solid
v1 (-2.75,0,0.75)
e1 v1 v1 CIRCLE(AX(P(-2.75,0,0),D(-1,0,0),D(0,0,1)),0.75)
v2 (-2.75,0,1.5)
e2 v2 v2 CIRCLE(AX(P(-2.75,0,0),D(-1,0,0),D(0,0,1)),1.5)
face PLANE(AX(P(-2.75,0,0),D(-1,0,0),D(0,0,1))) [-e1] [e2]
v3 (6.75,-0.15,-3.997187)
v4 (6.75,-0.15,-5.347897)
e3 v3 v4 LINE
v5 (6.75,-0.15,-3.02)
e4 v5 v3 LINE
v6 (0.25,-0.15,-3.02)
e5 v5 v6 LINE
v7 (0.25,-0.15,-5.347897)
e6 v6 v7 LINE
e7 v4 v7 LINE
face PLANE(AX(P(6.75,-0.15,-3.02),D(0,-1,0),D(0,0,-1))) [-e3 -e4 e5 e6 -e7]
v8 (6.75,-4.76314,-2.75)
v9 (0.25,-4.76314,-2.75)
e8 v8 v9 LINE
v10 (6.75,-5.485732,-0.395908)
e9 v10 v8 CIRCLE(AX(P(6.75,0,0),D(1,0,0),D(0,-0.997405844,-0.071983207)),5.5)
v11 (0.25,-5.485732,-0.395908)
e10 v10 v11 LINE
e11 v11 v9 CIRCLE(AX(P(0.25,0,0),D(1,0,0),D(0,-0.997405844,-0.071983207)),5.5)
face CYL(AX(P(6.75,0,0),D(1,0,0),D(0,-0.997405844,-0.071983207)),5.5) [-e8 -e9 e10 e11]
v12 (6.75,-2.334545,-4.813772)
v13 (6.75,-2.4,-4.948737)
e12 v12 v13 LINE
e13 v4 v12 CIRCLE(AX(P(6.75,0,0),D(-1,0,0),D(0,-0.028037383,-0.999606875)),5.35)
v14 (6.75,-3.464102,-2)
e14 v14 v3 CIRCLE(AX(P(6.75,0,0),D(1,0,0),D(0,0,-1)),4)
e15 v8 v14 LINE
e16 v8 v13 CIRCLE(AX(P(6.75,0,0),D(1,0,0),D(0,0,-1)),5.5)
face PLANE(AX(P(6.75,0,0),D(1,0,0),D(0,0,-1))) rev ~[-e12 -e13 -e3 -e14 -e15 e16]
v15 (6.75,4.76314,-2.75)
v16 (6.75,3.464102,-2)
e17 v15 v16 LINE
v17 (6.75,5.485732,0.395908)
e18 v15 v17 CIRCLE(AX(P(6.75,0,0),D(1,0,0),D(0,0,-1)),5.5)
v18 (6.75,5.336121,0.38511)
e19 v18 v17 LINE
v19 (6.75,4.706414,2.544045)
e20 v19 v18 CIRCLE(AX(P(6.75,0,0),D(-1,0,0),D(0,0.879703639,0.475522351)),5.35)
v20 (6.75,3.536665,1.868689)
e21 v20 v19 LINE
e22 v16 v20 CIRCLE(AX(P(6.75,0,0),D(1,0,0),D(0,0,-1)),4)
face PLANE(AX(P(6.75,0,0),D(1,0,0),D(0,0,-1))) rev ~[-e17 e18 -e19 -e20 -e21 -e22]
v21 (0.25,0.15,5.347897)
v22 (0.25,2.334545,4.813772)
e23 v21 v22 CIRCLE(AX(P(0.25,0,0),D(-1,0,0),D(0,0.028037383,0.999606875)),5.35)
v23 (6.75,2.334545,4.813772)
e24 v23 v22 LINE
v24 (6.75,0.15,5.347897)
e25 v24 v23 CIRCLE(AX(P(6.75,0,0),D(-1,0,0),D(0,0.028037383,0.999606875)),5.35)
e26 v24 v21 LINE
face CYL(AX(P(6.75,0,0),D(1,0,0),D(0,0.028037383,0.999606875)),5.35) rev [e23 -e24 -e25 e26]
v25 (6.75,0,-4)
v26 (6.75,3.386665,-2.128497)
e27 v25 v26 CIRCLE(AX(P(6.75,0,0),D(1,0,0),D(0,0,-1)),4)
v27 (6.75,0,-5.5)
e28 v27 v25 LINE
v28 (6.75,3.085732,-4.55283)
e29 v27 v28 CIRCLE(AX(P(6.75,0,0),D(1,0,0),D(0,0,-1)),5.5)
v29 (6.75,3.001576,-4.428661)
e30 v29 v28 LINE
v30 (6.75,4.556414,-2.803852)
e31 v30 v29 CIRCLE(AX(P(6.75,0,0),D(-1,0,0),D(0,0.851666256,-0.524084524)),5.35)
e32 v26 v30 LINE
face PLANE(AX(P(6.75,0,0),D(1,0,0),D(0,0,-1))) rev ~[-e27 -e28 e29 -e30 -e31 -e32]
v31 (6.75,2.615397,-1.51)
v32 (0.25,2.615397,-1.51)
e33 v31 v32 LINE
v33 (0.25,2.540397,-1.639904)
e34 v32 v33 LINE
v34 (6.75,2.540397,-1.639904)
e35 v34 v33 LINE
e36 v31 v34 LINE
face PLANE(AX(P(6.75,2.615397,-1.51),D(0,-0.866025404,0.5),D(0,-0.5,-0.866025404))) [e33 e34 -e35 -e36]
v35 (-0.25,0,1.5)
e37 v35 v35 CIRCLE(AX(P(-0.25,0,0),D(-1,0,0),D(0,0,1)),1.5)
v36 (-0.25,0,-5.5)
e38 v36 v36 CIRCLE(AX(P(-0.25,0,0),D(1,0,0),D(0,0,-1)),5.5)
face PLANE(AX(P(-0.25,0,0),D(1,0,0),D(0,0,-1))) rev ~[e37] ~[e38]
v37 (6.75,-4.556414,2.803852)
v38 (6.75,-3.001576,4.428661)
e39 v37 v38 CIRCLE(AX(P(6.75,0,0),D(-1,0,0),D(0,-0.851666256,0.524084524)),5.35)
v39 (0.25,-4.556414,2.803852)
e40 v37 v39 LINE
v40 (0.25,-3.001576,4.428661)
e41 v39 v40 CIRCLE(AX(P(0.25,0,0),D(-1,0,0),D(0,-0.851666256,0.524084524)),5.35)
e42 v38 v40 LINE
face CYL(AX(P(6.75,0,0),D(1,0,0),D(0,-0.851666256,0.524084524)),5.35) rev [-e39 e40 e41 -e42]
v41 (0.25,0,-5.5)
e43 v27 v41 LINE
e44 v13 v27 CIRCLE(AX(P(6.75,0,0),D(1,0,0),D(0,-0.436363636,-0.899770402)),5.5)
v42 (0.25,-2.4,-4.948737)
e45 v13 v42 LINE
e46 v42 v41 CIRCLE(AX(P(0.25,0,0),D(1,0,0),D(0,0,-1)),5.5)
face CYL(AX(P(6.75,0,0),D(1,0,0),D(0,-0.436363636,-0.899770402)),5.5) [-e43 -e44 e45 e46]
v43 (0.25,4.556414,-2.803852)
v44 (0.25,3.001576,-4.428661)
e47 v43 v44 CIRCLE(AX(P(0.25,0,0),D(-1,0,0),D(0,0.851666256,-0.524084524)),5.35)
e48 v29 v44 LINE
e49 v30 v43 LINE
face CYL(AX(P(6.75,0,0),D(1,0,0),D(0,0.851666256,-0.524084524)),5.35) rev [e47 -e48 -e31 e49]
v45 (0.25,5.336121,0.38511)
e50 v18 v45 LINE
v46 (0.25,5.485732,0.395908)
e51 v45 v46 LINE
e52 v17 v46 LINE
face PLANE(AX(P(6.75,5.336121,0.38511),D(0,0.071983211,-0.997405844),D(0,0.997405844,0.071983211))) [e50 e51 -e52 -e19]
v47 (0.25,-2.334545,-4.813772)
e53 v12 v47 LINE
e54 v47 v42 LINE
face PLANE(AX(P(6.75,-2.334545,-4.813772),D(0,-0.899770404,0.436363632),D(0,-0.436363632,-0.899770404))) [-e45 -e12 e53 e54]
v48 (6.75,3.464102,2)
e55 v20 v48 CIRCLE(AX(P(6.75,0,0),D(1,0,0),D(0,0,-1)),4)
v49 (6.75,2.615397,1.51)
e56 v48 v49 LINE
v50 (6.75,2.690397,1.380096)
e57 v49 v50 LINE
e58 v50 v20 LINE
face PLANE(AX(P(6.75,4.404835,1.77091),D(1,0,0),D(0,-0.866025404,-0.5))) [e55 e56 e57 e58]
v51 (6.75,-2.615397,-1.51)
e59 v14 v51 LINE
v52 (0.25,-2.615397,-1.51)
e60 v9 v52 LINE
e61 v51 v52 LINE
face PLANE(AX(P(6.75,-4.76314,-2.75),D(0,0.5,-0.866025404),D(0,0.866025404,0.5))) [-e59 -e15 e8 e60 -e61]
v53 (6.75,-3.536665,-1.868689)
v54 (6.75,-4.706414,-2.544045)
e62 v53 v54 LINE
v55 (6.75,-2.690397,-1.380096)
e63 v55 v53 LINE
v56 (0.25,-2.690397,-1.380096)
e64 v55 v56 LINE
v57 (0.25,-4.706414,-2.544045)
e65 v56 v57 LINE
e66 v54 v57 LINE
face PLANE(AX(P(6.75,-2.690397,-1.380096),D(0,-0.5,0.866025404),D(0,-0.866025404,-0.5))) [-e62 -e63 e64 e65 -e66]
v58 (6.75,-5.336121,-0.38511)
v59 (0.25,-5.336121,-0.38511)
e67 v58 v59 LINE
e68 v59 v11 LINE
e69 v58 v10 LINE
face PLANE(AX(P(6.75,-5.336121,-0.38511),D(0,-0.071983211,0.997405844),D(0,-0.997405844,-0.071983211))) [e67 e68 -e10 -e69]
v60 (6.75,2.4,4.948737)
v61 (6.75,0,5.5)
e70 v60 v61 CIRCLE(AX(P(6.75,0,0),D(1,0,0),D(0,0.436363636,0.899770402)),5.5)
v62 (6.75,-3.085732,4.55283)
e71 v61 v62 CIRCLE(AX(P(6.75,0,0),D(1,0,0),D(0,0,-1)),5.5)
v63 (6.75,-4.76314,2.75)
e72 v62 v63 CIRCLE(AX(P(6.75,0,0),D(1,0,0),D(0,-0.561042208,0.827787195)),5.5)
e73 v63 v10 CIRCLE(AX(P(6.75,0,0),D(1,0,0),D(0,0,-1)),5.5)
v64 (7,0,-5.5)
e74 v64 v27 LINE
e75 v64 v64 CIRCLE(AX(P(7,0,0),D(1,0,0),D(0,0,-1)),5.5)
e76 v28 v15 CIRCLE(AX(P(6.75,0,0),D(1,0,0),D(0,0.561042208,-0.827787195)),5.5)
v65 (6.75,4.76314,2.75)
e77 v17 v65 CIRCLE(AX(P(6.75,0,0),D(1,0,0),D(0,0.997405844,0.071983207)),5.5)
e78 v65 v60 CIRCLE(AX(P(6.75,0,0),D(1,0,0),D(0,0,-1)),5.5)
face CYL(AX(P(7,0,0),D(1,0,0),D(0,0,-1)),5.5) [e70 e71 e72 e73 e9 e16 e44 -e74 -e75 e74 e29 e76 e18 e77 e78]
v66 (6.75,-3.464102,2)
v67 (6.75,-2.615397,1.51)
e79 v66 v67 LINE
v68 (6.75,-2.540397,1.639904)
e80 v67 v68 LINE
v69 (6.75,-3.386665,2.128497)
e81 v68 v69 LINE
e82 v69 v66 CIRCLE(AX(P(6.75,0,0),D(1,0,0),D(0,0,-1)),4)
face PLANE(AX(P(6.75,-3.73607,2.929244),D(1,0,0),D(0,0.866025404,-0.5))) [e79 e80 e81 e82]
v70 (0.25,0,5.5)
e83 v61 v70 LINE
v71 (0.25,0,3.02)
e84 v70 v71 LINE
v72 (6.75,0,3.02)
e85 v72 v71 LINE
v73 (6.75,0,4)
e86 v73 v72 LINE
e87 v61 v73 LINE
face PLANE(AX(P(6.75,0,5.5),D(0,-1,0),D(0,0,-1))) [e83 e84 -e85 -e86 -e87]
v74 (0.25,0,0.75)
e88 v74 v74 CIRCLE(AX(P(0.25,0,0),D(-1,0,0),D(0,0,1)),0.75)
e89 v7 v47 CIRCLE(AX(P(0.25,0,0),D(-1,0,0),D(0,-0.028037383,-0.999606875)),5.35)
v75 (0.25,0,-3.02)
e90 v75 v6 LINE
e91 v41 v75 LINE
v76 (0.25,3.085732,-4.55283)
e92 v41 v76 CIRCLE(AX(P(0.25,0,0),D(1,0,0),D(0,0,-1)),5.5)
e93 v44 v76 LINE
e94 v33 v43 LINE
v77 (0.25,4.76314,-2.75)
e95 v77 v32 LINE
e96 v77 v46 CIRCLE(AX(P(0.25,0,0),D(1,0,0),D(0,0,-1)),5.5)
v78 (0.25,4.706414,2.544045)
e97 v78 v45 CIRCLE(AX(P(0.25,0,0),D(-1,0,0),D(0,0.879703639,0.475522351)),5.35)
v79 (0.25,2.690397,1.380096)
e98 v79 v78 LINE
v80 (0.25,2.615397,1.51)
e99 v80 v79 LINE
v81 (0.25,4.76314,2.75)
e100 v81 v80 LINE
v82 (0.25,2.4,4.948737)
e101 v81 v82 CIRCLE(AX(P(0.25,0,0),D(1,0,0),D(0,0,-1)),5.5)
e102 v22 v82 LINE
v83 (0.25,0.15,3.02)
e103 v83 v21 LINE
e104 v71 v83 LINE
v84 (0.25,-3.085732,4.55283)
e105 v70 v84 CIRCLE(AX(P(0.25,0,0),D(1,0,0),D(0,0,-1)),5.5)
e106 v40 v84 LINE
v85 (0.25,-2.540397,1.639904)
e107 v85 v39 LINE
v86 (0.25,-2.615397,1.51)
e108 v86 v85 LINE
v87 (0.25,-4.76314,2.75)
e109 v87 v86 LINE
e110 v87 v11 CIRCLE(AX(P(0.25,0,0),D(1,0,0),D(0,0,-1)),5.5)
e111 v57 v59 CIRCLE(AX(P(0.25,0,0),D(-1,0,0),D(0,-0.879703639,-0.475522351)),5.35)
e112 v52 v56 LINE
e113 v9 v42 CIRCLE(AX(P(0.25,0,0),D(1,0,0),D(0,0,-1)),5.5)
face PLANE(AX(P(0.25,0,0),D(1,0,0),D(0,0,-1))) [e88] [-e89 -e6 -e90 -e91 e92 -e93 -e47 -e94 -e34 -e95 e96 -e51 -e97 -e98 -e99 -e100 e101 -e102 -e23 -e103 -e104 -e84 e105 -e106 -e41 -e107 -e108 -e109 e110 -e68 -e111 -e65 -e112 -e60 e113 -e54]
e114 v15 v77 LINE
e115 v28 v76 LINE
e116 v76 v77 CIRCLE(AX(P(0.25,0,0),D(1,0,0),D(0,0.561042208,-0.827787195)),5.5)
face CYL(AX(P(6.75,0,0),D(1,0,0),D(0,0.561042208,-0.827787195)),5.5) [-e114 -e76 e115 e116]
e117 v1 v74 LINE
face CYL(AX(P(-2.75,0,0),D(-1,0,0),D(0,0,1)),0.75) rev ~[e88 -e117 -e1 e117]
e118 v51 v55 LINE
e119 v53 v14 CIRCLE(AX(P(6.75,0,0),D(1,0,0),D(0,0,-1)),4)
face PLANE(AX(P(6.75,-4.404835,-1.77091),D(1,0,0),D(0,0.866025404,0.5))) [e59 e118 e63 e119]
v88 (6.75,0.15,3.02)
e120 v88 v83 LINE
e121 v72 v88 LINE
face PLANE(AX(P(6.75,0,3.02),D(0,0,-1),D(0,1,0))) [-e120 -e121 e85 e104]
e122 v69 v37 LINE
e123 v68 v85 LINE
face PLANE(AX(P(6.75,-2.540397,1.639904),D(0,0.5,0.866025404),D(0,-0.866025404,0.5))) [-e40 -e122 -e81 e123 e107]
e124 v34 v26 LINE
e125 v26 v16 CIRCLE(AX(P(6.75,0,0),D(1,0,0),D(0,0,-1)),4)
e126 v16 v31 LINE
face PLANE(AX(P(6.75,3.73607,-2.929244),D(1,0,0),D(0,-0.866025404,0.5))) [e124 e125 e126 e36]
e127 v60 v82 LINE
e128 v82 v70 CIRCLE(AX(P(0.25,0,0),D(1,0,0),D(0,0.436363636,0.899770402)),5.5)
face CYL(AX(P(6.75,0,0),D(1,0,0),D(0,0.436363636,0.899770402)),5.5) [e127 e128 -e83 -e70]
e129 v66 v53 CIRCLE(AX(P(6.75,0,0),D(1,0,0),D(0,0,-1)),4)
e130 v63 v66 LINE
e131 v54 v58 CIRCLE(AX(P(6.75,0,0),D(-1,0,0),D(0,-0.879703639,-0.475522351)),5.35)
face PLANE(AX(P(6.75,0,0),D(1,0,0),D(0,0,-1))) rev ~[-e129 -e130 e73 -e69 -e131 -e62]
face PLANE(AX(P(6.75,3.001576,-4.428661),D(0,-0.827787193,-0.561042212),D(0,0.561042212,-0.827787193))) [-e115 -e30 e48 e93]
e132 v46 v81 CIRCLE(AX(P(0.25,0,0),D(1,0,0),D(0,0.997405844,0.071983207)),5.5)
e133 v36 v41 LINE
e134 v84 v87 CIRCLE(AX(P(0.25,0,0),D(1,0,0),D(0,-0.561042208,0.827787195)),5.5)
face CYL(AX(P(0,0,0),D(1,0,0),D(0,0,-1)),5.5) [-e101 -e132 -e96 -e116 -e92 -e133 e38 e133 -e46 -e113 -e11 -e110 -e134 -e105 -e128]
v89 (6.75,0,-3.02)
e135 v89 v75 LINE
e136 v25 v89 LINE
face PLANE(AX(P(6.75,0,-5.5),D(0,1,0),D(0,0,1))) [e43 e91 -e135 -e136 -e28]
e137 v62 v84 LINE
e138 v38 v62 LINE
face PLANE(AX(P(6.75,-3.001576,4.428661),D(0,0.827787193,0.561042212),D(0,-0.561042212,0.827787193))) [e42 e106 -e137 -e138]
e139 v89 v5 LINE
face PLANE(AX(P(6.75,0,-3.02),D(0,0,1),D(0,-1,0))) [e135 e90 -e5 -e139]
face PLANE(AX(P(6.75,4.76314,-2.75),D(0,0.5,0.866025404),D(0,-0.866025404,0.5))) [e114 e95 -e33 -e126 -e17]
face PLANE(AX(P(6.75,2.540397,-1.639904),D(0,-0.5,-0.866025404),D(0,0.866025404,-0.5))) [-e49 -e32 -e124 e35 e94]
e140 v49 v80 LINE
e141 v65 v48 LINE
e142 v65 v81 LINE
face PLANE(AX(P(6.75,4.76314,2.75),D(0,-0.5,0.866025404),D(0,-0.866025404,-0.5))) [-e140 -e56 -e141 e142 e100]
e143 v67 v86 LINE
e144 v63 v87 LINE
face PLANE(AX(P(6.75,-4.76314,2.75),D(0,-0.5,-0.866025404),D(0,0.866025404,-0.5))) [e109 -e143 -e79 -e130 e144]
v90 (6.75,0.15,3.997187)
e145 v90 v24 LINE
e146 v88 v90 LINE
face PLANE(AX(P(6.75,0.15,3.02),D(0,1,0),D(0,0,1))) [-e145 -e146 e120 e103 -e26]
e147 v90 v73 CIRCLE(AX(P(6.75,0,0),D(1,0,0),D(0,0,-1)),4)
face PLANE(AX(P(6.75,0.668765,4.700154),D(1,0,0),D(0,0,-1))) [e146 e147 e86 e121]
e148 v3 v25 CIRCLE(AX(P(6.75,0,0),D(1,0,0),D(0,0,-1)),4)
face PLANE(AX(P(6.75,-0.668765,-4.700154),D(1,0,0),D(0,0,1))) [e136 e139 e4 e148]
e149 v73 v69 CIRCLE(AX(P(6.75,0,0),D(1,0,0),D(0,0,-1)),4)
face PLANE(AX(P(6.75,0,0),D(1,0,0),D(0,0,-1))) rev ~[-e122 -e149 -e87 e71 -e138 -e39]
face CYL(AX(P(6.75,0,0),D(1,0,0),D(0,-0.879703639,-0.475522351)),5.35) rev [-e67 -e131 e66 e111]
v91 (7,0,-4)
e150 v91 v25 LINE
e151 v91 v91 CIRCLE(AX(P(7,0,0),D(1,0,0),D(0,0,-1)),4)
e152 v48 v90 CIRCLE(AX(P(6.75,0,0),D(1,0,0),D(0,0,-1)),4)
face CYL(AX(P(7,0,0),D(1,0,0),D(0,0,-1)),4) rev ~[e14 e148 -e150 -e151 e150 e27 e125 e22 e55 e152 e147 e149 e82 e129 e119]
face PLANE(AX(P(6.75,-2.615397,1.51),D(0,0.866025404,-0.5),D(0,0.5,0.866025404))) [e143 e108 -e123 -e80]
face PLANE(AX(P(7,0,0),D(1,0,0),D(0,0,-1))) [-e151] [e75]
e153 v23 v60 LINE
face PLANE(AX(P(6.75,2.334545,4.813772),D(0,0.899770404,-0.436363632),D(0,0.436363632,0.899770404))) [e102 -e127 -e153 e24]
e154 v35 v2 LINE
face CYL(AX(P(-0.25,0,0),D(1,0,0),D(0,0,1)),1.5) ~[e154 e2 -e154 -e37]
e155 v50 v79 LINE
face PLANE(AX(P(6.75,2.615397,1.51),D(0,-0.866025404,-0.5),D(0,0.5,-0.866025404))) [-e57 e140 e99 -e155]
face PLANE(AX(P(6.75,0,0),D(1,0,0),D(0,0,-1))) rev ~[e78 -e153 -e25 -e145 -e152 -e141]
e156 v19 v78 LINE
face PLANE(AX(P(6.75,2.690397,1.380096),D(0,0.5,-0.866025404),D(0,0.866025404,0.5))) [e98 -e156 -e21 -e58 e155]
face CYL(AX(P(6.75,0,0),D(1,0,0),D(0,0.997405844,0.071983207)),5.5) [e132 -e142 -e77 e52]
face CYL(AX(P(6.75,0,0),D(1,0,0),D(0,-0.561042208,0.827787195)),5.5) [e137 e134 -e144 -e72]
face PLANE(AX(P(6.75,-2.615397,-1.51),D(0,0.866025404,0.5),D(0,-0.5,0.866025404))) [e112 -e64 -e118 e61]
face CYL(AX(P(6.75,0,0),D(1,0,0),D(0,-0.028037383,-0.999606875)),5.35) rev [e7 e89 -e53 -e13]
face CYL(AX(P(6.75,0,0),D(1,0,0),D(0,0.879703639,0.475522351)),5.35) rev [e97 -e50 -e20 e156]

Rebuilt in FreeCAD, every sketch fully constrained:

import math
import FreeCAD as App
import Part
import Sketcher

V = App.Vector

doc = App.newDocument("Part")
body = doc.addObject("PartDesign::Body", "Body")

# Sketch on YZ plane
sketch1 = body.newObject("Sketcher::SketchObject", "Sketch")
sketch1.AttachmentSupport = (doc.getObject("YZ_Plane"), [""])
sketch1.MapMode = "FlatFace"
sketch1.addGeometry(Part.Circle(V(0, 0, 0), V(0, 0, 1), 5.5), False)
sketch1.addConstraint(Sketcher.Constraint("Coincident", 0, 3, -1, 1))
sketch1.addConstraint(Sketcher.Constraint("Diameter", 0, 11.0))
pad1 = body.newObject("PartDesign::Pad", "Pad")
pad1.Profile = sketch1
pad1.Length = 0.5
pad1.Midplane = True

# Sketch on YZ plane
sketch2 = body.newObject("Sketcher::SketchObject", "Sketch001")
sketch2.AttachmentSupport = (doc.getObject("YZ_Plane"), [""])
sketch2.MapMode = "FlatFace"
sketch2.AttachmentOffset = App.Placement(V(0, 0, -0.25), App.Rotation())
sketch2.addGeometry(Part.Circle(V(0, 0, 0), V(0, 0, 1), 1.5), False)
sketch2.addConstraint(Sketcher.Constraint("Coincident", 0, 3, -1, 1))
sketch2.addConstraint(Sketcher.Constraint("Diameter", 0, 3.0))
pad2 = body.newObject("PartDesign::Pad", "Pad001")
pad2.Profile = sketch2
pad2.Length = 2.5
pad2.Reversed = True

# Sketch on YZ plane
sketch3 = body.newObject("Sketcher::SketchObject", "Sketch002")
sketch3.AttachmentSupport = (doc.getObject("YZ_Plane"), [""])
sketch3.MapMode = "FlatFace"
sketch3.AttachmentOffset = App.Placement(V(0, 0, -2.75), App.Rotation())
sketch3.addGeometry(Part.Circle(V(0, 0, 0), V(0, 0, 1), 0.75), False)
sketch3.addConstraint(Sketcher.Constraint("Coincident", 0, 3, -1, 1))
sketch3.addConstraint(Sketcher.Constraint("Diameter", 0, 1.5))
pocket1 = body.newObject("PartDesign::Pocket", "Pocket")
pocket1.Profile = sketch3
pocket1.Type = "ThroughAll"
pocket1.Reversed = True

# Sketch on YZ plane
sketch4 = body.newObject("Sketcher::SketchObject", "Sketch003")
sketch4.AttachmentSupport = (doc.getObject("YZ_Plane"), [""])
sketch4.MapMode = "FlatFace"
sketch4.AttachmentOffset = App.Placement(V(0, 0, 6.75), App.Rotation())
sketch4.addGeometry(Part.LineSegment(V(0, 5.5, 0), V(0, 3.02, 0)), False)
sketch4.addGeometry(Part.LineSegment(V(0, 3.02, 0), V(0.15, 3.02, 0)), False)
sketch4.addGeometry(Part.LineSegment(V(0.15, 3.02, 0), V(0.15, 5.347897, 0)), False)
sketch4.addGeometry(Part.ArcOfCircle(Part.Circle(V(0, 0, 0), V(0, 0, 1), 5.35), math.radians(64.127904), math.radians(88.393366)), False)
sketch4.addGeometry(Part.LineSegment(V(2.334545, 4.813772, 0), V(2.4, 4.948737, 0)), False)
sketch4.addGeometry(Part.ArcOfCircle(Part.Circle(V(0, 0, 0), V(0, 0, 1), 5.5), math.radians(64.127904), math.radians(90)), False)
sketch4.addConstraint(Sketcher.Constraint("Coincident", 0, 2, 1, 1))
sketch4.addConstraint(Sketcher.Constraint("Coincident", 1, 2, 2, 1))
sketch4.addConstraint(Sketcher.Constraint("Coincident", 2, 2, 3, 2))
sketch4.addConstraint(Sketcher.Constraint("Coincident", 3, 1, 4, 1))
sketch4.addConstraint(Sketcher.Constraint("Coincident", 4, 2, 5, 1))
sketch4.addConstraint(Sketcher.Constraint("Coincident", 5, 2, 0, 1))
sketch4.addConstraint(Sketcher.Constraint("Vertical", 0))
sketch4.addConstraint(Sketcher.Constraint("Horizontal", 1))
sketch4.addConstraint(Sketcher.Constraint("Vertical", 2))
sketch4.addConstraint(Sketcher.Constraint("Coincident", 3, 3, -1, 1))
sketch4.addConstraint(Sketcher.Constraint("Coincident", 5, 3, -1, 1))
sketch4.addConstraint(Sketcher.Constraint("PointOnObject", 0, 2, -2))
sketch4.addConstraint(Sketcher.Constraint("Radius", 5, 5.5))
sketch4.addConstraint(Sketcher.Constraint("Radius", 3, 5.35))
sketch4.addConstraint(Sketcher.Constraint("DistanceX", 1, 1, 1, 2, 0.15))
sketch4.addConstraint(Sketcher.Constraint("DistanceY", 0, 2, 0, 1, 2.48))
sketch4.addConstraint(Sketcher.Constraint("DistanceX", -1, 1, 4, 2, 2.4))
sketch4.addConstraint(Sketcher.Constraint("DistanceY", -1, 1, 3, 1, 4.813772))
pad3 = body.newObject("PartDesign::Pad", "Pad002")
pad3.Profile = sketch4
pad3.Length = 6.5
pad3.Reversed = True
doc.recompute()

polarpattern = body.newObject("PartDesign::PolarPattern", "PolarPattern")
polarpattern.Originals = [pad3]
polarpattern.Axis = (doc.getObject("X_Axis"), [""])
polarpattern.Angle = 360
polarpattern.Occurrences = 6
body.Tip = polarpattern

# Sketch on YZ plane
sketch5 = body.newObject("Sketcher::SketchObject", "Sketch004")
sketch5.AttachmentSupport = (doc.getObject("YZ_Plane"), [""])
sketch5.MapMode = "FlatFace"
sketch5.AttachmentOffset = App.Placement(V(0, 0, 7), App.Rotation())
sketch5.addGeometry(Part.Circle(V(0, 0, 0), V(0, 0, 1), 5.5), False)
sketch5.addGeometry(Part.Circle(V(0, 0, 0), V(0, 0, 1), 4), False)
sketch5.addConstraint(Sketcher.Constraint("Coincident", 0, 3, -1, 1))
sketch5.addConstraint(Sketcher.Constraint("Coincident", 1, 3, -1, 1))
sketch5.addConstraint(Sketcher.Constraint("Diameter", 0, 11.0))
sketch5.addConstraint(Sketcher.Constraint("Diameter", 1, 8.0))
pad4 = body.newObject("PartDesign::Pad", "Pad003")
pad4.Profile = sketch5
pad4.Length = 0.25
pad4.Reversed = True

doc.recompute()
